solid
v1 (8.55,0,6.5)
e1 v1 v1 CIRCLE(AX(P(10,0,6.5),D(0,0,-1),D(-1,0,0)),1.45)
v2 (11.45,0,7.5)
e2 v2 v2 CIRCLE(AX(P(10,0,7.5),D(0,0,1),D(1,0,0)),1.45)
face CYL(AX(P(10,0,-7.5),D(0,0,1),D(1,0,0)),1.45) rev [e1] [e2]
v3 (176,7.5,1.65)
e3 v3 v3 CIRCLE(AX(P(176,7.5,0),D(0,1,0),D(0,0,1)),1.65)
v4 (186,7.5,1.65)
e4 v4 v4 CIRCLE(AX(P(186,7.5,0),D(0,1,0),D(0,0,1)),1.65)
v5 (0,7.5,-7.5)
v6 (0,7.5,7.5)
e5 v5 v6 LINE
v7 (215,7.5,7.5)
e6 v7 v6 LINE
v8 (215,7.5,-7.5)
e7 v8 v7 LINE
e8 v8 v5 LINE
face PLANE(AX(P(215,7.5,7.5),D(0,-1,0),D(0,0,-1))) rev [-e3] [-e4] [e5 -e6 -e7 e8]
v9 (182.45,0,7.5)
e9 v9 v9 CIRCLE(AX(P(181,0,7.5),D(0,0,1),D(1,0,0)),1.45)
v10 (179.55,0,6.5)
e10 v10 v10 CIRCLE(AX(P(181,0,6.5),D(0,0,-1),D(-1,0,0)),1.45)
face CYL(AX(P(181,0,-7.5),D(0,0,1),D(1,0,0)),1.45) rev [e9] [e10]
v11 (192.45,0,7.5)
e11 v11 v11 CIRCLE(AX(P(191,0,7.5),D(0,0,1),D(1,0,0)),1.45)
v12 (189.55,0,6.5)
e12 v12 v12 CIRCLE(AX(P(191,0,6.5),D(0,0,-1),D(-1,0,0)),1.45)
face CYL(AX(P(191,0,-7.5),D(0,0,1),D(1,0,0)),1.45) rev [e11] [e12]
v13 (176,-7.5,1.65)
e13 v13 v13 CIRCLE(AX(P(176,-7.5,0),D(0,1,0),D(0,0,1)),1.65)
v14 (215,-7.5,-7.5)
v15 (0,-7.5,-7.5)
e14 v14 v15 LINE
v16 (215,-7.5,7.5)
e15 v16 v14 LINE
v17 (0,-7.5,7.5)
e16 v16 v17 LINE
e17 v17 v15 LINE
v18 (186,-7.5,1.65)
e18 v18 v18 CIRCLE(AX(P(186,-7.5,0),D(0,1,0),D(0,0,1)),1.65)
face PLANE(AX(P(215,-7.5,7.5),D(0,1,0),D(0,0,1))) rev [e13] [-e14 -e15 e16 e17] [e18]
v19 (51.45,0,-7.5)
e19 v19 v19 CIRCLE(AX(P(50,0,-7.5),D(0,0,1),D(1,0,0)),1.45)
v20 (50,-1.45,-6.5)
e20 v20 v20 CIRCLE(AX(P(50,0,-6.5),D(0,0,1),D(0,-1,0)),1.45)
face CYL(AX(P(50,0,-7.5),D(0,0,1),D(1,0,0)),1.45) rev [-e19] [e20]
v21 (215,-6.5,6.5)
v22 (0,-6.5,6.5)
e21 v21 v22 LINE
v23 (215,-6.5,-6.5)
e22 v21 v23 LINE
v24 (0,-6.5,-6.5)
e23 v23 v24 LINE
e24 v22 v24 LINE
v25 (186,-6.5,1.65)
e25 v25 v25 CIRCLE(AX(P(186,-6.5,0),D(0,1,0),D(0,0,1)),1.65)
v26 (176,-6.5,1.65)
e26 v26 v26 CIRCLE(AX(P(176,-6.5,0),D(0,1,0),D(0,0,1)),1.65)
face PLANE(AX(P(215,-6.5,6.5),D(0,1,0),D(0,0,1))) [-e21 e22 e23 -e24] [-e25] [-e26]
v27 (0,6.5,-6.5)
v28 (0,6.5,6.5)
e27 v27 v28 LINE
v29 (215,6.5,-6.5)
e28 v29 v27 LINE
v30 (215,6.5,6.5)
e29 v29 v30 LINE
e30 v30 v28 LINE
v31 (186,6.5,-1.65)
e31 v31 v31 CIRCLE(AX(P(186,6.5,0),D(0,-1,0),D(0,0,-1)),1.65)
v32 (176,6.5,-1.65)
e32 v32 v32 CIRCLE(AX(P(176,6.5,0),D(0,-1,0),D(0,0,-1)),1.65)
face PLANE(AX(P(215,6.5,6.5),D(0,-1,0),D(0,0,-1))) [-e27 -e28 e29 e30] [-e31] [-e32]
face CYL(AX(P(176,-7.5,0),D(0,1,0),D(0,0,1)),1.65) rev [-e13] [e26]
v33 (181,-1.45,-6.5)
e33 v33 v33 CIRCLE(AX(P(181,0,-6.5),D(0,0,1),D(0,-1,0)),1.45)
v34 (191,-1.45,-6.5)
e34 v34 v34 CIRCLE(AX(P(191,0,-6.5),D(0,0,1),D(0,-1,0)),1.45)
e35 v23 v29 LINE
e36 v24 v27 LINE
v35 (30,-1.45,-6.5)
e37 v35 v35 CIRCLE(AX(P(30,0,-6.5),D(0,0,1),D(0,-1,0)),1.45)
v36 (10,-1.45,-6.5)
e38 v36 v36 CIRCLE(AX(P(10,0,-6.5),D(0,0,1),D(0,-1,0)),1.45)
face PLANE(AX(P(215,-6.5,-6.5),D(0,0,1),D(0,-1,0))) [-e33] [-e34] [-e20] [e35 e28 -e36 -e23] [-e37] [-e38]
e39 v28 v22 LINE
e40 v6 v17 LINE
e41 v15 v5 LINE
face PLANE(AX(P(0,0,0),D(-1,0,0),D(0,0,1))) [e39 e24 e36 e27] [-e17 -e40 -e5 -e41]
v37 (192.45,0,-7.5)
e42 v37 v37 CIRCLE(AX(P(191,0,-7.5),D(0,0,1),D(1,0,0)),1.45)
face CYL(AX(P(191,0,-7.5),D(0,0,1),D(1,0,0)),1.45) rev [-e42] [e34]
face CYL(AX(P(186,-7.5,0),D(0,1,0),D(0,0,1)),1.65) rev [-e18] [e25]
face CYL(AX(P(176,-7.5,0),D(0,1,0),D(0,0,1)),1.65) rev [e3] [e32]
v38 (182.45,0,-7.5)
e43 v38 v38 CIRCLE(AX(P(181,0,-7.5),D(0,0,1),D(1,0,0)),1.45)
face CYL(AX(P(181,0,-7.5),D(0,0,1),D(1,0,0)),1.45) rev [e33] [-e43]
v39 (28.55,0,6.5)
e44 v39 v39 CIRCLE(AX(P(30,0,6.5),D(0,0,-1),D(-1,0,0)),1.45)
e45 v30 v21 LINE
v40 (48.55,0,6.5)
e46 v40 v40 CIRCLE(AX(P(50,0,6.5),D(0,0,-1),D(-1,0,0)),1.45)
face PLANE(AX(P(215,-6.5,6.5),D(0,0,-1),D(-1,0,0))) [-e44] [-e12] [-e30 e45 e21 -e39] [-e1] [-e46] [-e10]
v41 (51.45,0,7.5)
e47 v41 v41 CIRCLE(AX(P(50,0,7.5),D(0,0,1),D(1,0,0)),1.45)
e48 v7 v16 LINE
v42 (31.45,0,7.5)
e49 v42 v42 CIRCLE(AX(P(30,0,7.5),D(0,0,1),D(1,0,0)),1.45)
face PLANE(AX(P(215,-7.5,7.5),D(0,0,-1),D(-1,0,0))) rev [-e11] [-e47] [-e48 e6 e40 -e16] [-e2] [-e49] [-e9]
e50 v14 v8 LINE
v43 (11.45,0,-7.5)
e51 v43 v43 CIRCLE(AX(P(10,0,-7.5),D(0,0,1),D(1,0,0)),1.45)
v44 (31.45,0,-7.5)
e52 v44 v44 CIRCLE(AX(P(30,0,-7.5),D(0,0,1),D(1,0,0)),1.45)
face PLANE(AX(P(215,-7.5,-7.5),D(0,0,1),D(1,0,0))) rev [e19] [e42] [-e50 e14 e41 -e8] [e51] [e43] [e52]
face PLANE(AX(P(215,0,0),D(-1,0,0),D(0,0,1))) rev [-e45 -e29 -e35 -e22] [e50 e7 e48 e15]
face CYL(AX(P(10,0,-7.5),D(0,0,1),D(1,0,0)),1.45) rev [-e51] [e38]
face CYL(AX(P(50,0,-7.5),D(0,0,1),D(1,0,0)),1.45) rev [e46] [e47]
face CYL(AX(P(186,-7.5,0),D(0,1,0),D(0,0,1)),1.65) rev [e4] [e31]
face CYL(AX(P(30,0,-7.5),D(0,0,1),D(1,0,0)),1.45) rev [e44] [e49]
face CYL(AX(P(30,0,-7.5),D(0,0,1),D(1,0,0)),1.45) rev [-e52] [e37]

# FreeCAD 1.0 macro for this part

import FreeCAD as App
import Part
import Sketcher

V = App.Vector


def add_polygon(sketch, points):
    """Adds a closed chain of lines whose ends are joined by coincident constraints."""
    first, n = sketch.GeometryCount, len(points)
    for a, b in zip(points, points[1:] + points[:1]):
        sketch.addGeometry(Part.LineSegment(App.Vector(*a, 0), App.Vector(*b, 0)), False)
    for i in range(n):
        sketch.addConstraint(Sketcher.Constraint("Coincident", first + i, 2, first + (i + 1) % n, 1))

doc = App.newDocument("Part")
body = doc.addObject("PartDesign::Body", "Body")

# Sketch on YZ plane
sketch1 = body.newObject("Sketcher::SketchObject", "Sketch")
sketch1.AttachmentSupport = (doc.getObject("YZ_Plane"), [""])
sketch1.MapMode = "FlatFace"
add_polygon(sketch1, [(8, 8), (-8, 8), (-8, -8), (8, -8)])  # lines 0-3
add_polygon(sketch1, [(-6, -6), (-6, 6), (6, 6), (6, -6)])  # lines 4-7
sketch1.addConstraint([
    Sketcher.Constraint("Horizontal", 0),
    Sketcher.Constraint("Vertical", 1),
    Sketcher.Constraint("Horizontal", 2),
    Sketcher.Constraint("Vertical", 3),
    Sketcher.Constraint("Vertical", 4),
    Sketcher.Constraint("Horizontal", 5),
    Sketcher.Constraint("Vertical", 6),
    Sketcher.Constraint("Horizontal", 7),
    Sketcher.Constraint("Symmetric", 0, 2, 2, 2, -1, 1),
    Sketcher.Constraint("Symmetric", 4, 2, 6, 2, -1, 1),
    Sketcher.Constraint("Equal", 2, 1),
    Sketcher.Constraint("Equal", 7, 4),
    Sketcher.Constraint("DistanceX", 0, 2, 0, 1, 15.0),
    Sketcher.Constraint("DistanceX", 5, 1, 5, 2, 13.0),
])
pad1 = body.newObject("PartDesign::Pad", "Pad")
pad1.Profile = sketch1
pad1.Length = 215

# Sketch on XY plane
sketch2 = body.newObject("Sketcher::SketchObject", "Sketch001")
sketch2.AttachmentSupport = (doc.getObject("XY_Plane"), [""])
sketch2.MapMode = "FlatFace"
sketch2.AttachmentOffset = App.Placement(V(0, 0, 7.5), App.Rotation())
sketch2.addGeometry([
    Part.Circle(V(191, 0, 0), V(0, 0, 1), 1.4),  # 0
    Part.Circle(V(181, 0, 0), V(0, 0, 1), 1.4),  # 1
    Part.Circle(V(50, 0, 0), V(0, 0, 1), 1.4),  # 2
    Part.Circle(V(30, 0, 0), V(0, 0, 1), 1.4),  # 3
    Part.Circle(V(10, 0, 0), V(0, 0, 1), 1.4),  # 4
], False)
sketch2.addConstraint([
    Sketcher.Constraint("Equal", 0, 1),
    Sketcher.Constraint("Equal", 1, 2),
    Sketcher.Constraint("Equal", 2, 3),
    Sketcher.Constraint("Equal", 3, 4),
    Sketcher.Constraint("PointOnObject", 0, 3, -1),
    Sketcher.Constraint("PointOnObject", 1, 3, -1),
    Sketcher.Constraint("PointOnObject", 2, 3, -1),
    Sketcher.Constraint("PointOnObject", 3, 3, -1),
    Sketcher.Constraint("PointOnObject", 4, 3, -1),
    Sketcher.Constraint("Diameter", 0, 2.9),
    Sketcher.Constraint("DistanceX", -1, 1, 0, 3, 191.0),
    Sketcher.Constraint("DistanceX", -1, 1, 1, 3, 181.0),
    Sketcher.Constraint("DistanceX", -1, 1, 2, 3, 50.0),
    Sketcher.Constraint("DistanceX", -1, 1, 3, 3, 30.0),
    Sketcher.Constraint("DistanceX", -1, 1, 4, 3, 10.0),
])
pocket1 = body.newObject("PartDesign::Pocket", "Pocket")
pocket1.Profile = sketch2
pocket1.Type = "ThroughAll"

# Sketch on XZ plane
sketch3 = body.newObject("Sketcher::SketchObject", "Sketch002")
sketch3.AttachmentSupport = (doc.getObject("XZ_Plane"), [""])
sketch3.MapMode = "FlatFace"
sketch3.AttachmentOffset = App.Placement(V(0, 0, -7.5), App.Rotation())
sketch3.addGeometry([
    Part.Circle(V(176, 0, 0), V(0, 0, 1), 1.6),
    Part.Circle(V(186, 0, 0), V(0, 0, 1), 1.6),
], False)
sketch3.addConstraint([
    Sketcher.Constraint("Equal", 0, 1),
    Sketcher.Constraint("PointOnObject", 0, 3, -1),
    Sketcher.Constraint("PointOnObject", 1, 3, -1),
    Sketcher.Constraint("Diameter", 0, 3.3),
    Sketcher.Constraint("DistanceX", -1, 1, 0, 3, 176.0),
    Sketcher.Constraint("DistanceX", -1, 1, 1, 3, 186.0),
])
pocket2 = body.newObject("PartDesign::Pocket", "Pocket001")
pocket2.Profile = sketch3
pocket2.Type = "ThroughAll"
pocket2.Reversed = True

doc.recompute()
